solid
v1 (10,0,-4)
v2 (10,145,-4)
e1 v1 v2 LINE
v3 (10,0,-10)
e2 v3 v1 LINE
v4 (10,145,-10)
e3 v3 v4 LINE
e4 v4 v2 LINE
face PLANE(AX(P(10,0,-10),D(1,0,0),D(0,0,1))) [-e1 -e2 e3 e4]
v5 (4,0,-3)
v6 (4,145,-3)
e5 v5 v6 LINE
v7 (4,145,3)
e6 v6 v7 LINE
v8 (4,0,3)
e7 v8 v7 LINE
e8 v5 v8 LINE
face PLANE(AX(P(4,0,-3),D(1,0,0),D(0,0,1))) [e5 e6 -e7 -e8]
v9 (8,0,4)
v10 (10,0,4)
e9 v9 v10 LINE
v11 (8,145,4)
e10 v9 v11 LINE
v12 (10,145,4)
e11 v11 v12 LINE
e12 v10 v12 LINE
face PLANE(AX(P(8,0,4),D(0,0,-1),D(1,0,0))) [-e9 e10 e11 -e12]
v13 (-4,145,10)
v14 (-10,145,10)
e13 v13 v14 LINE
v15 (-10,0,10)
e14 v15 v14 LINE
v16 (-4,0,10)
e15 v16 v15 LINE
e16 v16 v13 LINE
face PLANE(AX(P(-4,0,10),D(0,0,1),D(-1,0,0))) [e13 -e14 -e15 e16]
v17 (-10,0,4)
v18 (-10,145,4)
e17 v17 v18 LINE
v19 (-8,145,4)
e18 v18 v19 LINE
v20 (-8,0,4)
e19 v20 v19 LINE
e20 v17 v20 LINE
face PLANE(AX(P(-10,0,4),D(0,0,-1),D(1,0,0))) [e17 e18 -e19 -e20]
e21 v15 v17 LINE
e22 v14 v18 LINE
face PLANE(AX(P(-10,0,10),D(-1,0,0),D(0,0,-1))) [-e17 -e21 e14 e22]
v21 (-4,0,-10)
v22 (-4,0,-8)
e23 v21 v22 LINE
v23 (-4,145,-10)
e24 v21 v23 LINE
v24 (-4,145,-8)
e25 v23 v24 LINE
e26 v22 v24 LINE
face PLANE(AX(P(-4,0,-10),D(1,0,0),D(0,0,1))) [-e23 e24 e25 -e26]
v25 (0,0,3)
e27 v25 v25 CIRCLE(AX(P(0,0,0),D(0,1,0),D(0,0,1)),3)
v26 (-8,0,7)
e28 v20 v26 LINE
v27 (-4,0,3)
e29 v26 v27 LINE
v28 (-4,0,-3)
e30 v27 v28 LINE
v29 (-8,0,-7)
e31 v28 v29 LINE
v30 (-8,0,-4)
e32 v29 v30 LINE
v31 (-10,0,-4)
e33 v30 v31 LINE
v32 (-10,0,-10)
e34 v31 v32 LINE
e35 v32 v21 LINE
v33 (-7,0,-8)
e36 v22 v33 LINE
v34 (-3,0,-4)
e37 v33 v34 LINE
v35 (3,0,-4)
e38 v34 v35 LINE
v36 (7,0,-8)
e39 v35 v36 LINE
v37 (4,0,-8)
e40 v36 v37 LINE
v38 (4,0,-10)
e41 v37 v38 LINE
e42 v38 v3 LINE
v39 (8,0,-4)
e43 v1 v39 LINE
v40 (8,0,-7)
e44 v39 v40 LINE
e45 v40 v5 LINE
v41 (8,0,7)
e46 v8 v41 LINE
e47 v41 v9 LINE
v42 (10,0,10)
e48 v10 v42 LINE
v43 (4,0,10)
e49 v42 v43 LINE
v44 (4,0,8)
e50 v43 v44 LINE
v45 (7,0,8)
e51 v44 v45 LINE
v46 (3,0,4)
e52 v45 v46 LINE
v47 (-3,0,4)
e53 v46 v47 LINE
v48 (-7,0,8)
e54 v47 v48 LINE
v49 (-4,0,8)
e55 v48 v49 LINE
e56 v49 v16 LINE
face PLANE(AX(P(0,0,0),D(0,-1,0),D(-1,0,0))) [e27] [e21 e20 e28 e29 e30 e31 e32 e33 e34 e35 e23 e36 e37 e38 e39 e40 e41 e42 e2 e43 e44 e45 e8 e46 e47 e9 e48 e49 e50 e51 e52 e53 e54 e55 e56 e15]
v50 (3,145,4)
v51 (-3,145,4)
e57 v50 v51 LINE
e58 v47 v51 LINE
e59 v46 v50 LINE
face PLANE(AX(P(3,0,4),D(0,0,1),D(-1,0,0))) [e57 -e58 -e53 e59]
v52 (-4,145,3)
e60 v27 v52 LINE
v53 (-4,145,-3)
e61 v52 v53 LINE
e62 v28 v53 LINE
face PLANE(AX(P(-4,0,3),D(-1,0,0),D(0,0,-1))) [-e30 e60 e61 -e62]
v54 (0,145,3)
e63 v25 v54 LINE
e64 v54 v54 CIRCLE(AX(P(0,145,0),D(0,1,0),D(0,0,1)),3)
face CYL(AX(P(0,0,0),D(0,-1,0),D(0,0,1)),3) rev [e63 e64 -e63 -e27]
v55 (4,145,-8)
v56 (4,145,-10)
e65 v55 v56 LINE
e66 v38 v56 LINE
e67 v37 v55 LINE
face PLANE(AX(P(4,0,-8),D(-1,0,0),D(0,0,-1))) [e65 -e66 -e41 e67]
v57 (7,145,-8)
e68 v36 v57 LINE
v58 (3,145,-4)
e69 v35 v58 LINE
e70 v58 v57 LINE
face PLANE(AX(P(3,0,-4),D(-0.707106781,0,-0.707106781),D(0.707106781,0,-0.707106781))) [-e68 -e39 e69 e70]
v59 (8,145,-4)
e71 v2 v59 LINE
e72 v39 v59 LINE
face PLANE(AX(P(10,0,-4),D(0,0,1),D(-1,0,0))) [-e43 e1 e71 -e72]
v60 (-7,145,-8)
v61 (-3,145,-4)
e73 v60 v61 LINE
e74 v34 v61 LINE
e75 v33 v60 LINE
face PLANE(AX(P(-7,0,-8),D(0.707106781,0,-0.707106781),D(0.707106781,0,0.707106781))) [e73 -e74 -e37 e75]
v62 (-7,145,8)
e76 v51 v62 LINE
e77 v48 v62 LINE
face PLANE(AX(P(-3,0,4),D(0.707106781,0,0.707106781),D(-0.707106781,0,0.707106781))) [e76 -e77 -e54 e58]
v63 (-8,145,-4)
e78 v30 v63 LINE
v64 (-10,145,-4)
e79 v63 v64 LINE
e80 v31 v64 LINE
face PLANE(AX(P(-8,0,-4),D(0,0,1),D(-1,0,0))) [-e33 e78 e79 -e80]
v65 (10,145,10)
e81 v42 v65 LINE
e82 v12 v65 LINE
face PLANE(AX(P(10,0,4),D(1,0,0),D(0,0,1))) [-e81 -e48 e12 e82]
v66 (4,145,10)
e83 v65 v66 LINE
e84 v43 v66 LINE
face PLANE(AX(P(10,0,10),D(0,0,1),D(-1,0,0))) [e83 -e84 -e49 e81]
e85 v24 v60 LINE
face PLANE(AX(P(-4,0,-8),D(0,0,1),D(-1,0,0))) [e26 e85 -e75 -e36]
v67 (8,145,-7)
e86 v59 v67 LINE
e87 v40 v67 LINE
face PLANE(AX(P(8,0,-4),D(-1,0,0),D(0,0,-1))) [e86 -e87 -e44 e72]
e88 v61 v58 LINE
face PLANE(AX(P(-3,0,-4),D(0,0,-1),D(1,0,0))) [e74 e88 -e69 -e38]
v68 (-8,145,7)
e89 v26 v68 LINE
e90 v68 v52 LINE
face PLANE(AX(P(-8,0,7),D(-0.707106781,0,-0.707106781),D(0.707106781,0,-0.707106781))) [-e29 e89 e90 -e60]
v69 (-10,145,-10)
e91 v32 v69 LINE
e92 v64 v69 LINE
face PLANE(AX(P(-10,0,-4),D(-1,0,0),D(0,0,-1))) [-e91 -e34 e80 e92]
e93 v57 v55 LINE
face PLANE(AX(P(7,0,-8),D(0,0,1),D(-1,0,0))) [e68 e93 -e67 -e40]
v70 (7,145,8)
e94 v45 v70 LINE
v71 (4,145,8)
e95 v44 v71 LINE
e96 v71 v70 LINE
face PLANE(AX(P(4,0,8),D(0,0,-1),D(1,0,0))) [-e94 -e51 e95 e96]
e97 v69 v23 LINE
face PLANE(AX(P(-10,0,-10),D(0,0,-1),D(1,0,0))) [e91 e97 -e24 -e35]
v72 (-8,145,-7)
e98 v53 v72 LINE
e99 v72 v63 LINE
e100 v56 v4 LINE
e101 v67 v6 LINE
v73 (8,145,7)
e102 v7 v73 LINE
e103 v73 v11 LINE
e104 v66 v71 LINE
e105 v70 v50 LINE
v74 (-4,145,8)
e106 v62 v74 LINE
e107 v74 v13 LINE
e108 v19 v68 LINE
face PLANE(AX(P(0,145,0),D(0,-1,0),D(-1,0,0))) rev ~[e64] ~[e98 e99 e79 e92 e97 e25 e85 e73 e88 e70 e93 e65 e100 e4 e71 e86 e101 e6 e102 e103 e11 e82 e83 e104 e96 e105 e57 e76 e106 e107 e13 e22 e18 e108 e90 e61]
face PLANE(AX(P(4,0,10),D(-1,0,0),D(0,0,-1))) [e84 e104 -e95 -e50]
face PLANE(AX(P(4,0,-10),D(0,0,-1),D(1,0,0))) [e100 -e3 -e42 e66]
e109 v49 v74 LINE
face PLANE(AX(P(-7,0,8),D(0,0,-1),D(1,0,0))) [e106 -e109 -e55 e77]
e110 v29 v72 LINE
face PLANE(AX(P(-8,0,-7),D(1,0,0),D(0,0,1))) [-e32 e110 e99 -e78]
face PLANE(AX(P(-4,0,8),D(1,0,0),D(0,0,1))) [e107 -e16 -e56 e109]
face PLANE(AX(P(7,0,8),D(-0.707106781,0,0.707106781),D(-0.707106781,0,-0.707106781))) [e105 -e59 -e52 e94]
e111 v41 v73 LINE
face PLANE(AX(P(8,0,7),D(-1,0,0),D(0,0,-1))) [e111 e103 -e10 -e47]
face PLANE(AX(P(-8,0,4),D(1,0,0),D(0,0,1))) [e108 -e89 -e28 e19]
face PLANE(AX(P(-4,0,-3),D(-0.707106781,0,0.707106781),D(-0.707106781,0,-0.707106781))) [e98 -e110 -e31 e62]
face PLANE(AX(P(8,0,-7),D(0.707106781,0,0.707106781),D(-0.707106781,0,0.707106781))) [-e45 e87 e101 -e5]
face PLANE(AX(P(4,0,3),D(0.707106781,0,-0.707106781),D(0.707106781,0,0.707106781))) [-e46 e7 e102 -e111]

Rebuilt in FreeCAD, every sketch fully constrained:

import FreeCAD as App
import Part
import Sketcher

V = App.Vector
Q = App.Units.Quantity

doc = App.newDocument("Part")
params = doc.addObject("Spreadsheet::Sheet", "Params")
for row, (alias, value) in enumerate([
    ("sketch1_diameter", "6 mm"),
    ("sketch1_width", "6 mm"),
    ("sketch1_width2", "2 mm"),
    ("sketch1_width3", "3 mm"),
    ("pad1_length", "145 mm"),
], start=1):
    params.set(f"A{row}", alias)
    params.set(f"B{row}", "=" + value)
    params.setAlias(f"B{row}", alias)

body = doc.addObject("PartDesign::Body", "Body")

sketch1 = doc.addObject("Sketcher::SketchObject", "Sketch")
body.addObject(sketch1)
sketch1.AttachmentSupport = (doc.XZ_Plane, [""])
sketch1.MapMode = "FlatFace"
sketch1.addGeometry([
    Part.LineSegment(V(-4, -8, 0), V(-4, -10, 0)),
    Part.LineSegment(V(-4, -10, 0), V(-10, -10, 0)),
    Part.LineSegment(V(-10, -10, 0), V(-10, -4, 0)),
    Part.LineSegment(V(-10, -4, 0), V(-8, -4, 0)),
    Part.LineSegment(V(-8, -4, 0), V(-8, -7, 0)),
    Part.LineSegment(V(-8, -7, 0), V(-4, -3, 0)),
    Part.LineSegment(V(-4, -3, 0), V(-4, 3, 0)),
    Part.LineSegment(V(-4, 3, 0), V(-8, 7, 0)),
    Part.LineSegment(V(-8, 7, 0), V(-8, 4, 0)),
    Part.LineSegment(V(-8, 4, 0), V(-10, 4, 0)),
    Part.LineSegment(V(-10, 4, 0), V(-10, 10, 0)),
    Part.LineSegment(V(-10, 10, 0), V(-4, 10, 0)),
    Part.LineSegment(V(-4, 10, 0), V(-4, 8, 0)),
    Part.LineSegment(V(-4, 8, 0), V(-7, 8, 0)),
    Part.LineSegment(V(-7, 8, 0), V(-3, 4, 0)),
    Part.LineSegment(V(-3, 4, 0), V(3, 4, 0)),
    Part.LineSegment(V(3, 4, 0), V(7, 8, 0)),
    Part.LineSegment(V(7, 8, 0), V(4, 8, 0)),
    Part.LineSegment(V(4, 8, 0), V(4, 10, 0)),
    Part.LineSegment(V(4, 10, 0), V(10, 10, 0)),
    Part.LineSegment(V(10, 10, 0), V(10, 4, 0)),
    Part.LineSegment(V(10, 4, 0), V(8, 4, 0)),
    Part.LineSegment(V(8, 4, 0), V(8, 7, 0)),
    Part.LineSegment(V(8, 7, 0), V(4, 3, 0)),
    Part.LineSegment(V(4, 3, 0), V(4, -3, 0)),
    Part.LineSegment(V(4, -3, 0), V(8, -7, 0)),
    Part.LineSegment(V(8, -7, 0), V(8, -4, 0)),
    Part.LineSegment(V(8, -4, 0), V(10, -4, 0)),
    Part.LineSegment(V(10, -4, 0), V(10, -10, 0)),
    Part.LineSegment(V(10, -10, 0), V(4, -10, 0)),
    Part.LineSegment(V(4, -10, 0), V(4, -8, 0)),
    Part.LineSegment(V(4, -8, 0), V(7, -8, 0)),
    Part.LineSegment(V(7, -8, 0), V(3, -4, 0)),
    Part.LineSegment(V(3, -4, 0), V(-3, -4, 0)),
    Part.LineSegment(V(-3, -4, 0), V(-7, -8, 0)),
    Part.LineSegment(V(-7, -8, 0), V(-4, -8, 0)),
    Part.Circle(V(0, 0, 0), V(0, 0, 1), 3),
], False)
sketch1.addConstraint([
    Sketcher.Constraint("Coincident", 0, 2, 1, 1),
    Sketcher.Constraint("Coincident", 1, 2, 2, 1),
    Sketcher.Constraint("Coincident", 2, 2, 3, 1),
    Sketcher.Constraint("Coincident", 3, 2, 4, 1),
    Sketcher.Constraint("Coincident", 4, 2, 5, 1),
    Sketcher.Constraint("Coincident", 5, 2, 6, 1),
    Sketcher.Constraint("Coincident", 6, 2, 7, 1),
    Sketcher.Constraint("Coincident", 7, 2, 8, 1),
    Sketcher.Constraint("Coincident", 8, 2, 9, 1),
    Sketcher.Constraint("Coincident", 9, 2, 10, 1),
    Sketcher.Constraint("Coincident", 10, 2, 11, 1),
    Sketcher.Constraint("Coincident", 11, 2, 12, 1),
    Sketcher.Constraint("Coincident", 12, 2, 13, 1),
    Sketcher.Constraint("Coincident", 13, 2, 14, 1),
    Sketcher.Constraint("Coincident", 14, 2, 15, 1),
    Sketcher.Constraint("Coincident", 15, 2, 16, 1),
    Sketcher.Constraint("Coincident", 16, 2, 17, 1),
    Sketcher.Constraint("Coincident", 17, 2, 18, 1),
    Sketcher.Constraint("Coincident", 18, 2, 19, 1),
    Sketcher.Constraint("Coincident", 19, 2, 20, 1),
    Sketcher.Constraint("Coincident", 20, 2, 21, 1),
    Sketcher.Constraint("Coincident", 21, 2, 22, 1),
    Sketcher.Constraint("Coincident", 22, 2, 23, 1),
    Sketcher.Constraint("Coincident", 23, 2, 24, 1),
    Sketcher.Constraint("Coincident", 24, 2, 25, 1),
    Sketcher.Constraint("Coincident", 25, 2, 26, 1),
    Sketcher.Constraint("Coincident", 26, 2, 27, 1),
    Sketcher.Constraint("Coincident", 27, 2, 28, 1),
    Sketcher.Constraint("Coincident", 28, 2, 29, 1),
    Sketcher.Constraint("Coincident", 29, 2, 30, 1),
    Sketcher.Constraint("Coincident", 30, 2, 31, 1),
    Sketcher.Constraint("Coincident", 31, 2, 32, 1),
    Sketcher.Constraint("Coincident", 32, 2, 33, 1),
    Sketcher.Constraint("Coincident", 33, 2, 34, 1),
    Sketcher.Constraint("Coincident", 34, 2, 35, 1),
    Sketcher.Constraint("Coincident", 35, 2, 0, 1),
    Sketcher.Constraint("Vertical", 0),
    Sketcher.Constraint("Horizontal", 1),
    Sketcher.Constraint("Vertical", 2),
    Sketcher.Constraint("Horizontal", 3),
    Sketcher.Constraint("Vertical", 4),
    Sketcher.Constraint("Vertical", 6),
    Sketcher.Constraint("Vertical", 8),
    Sketcher.Constraint("Horizontal", 9),
    Sketcher.Constraint("Vertical", 10),
    Sketcher.Constraint("Horizontal", 11),
    Sketcher.Constraint("Vertical", 12),
    Sketcher.Constraint("Horizontal", 13),
    Sketcher.Constraint("Horizontal", 15),
    Sketcher.Constraint("Horizontal", 17),
    Sketcher.Constraint("Vertical", 18),
    Sketcher.Constraint("Horizontal", 19),
    Sketcher.Constraint("Vertical", 20),
    Sketcher.Constraint("Horizontal", 21),
    Sketcher.Constraint("Vertical", 22),
    Sketcher.Constraint("Vertical", 24),
    Sketcher.Constraint("Vertical", 26),
    Sketcher.Constraint("Horizontal", 27),
    Sketcher.Constraint("Vertical", 28),
    Sketcher.Constraint("Horizontal", 29),
    Sketcher.Constraint("Vertical", 30),
    Sketcher.Constraint("Horizontal", 31),
    Sketcher.Constraint("Horizontal", 33),
    Sketcher.Constraint("Horizontal", 35),
    Sketcher.Constraint("Coincident", 36, 3, -1, 1),
    Sketcher.Constraint("Symmetric", 0, 2, 18, 2, -1, 1),
    Sketcher.Constraint("Symmetric", 2, 2, 20, 2, -1, 1),
    Sketcher.Constraint("Symmetric", 4, 2, 22, 2, -1, 1),
    Sketcher.Constraint("Symmetric", 5, 2, 23, 2, -1, 1),
    Sketcher.Constraint("Symmetric", 7, 2, 25, 2, -1, 1),
    Sketcher.Constraint("Symmetric", 9, 2, 27, 2, -1, 1),
    Sketcher.Constraint("Symmetric", 11, 2, 29, 2, -1, 1),
    Sketcher.Constraint("Symmetric", 13, 2, 31, 2, -1, 1),
    Sketcher.Constraint("Symmetric", 14, 2, 32, 2, -1, 1),
    Sketcher.Constraint("Symmetric", 16, 2, 34, 2, -1, 1),
    Sketcher.Constraint("Symmetric", 13, 2, 16, 2, -2),
    Sketcher.Constraint("Symmetric", 11, 2, 18, 2, -2),
    Sketcher.Constraint("Symmetric", 9, 2, 20, 2, -2),
    Sketcher.Constraint("Symmetric", 7, 2, 22, 2, -2),
    Sketcher.Constraint("Perpendicular", 5, 7),
    Sketcher.Constraint("Parallel", 7, 14),
    Sketcher.Constraint("Perpendicular", 14, 16),
    Sketcher.Constraint("Perpendicular", 23, 25),
    Sketcher.Constraint("Perpendicular", 32, 34),
    Sketcher.Constraint("Horizontal", 9, 2, 14, 2),
    Sketcher.Constraint("Horizontal", 6, 2, 23, 2),
    Sketcher.Constraint("Vertical", 0, 2, 5, 2),
    Sketcher.Constraint("Equal", 11, 15),
    Sketcher.Constraint("Equal", 27, 0),
    Sketcher.Constraint("Equal", 33, 2),
    Sketcher.Constraint("Equal", 35, 4),
    Sketcher.Constraint("Equal", 2, 6),
    Sketcher.Constraint("Diameter", 36, Q("6 mm")),
    Sketcher.Constraint("DistanceX", 1, 2, 1, 1, Q("6 mm")),
    Sketcher.Constraint("DistanceX", 3, 1, 3, 2, Q("2 mm")),
    Sketcher.Constraint("DistanceX", 13, 2, 13, 1, Q("3 mm")),
])
sketch1.setExpression("Constraints[92]", "Params.sketch1_diameter")
sketch1.setExpression("Constraints[93]", "Params.sketch1_width")
sketch1.setExpression("Constraints[94]", "Params.sketch1_width2")
sketch1.setExpression("Constraints[95]", "Params.sketch1_width3")
pad1 = doc.addObject("PartDesign::Pad", "Pad")
body.addObject(pad1)
pad1.Profile = sketch1
pad1.setExpression("Length", "Params.pad1_length")
pad1.Reversed = True

doc.recompute()
